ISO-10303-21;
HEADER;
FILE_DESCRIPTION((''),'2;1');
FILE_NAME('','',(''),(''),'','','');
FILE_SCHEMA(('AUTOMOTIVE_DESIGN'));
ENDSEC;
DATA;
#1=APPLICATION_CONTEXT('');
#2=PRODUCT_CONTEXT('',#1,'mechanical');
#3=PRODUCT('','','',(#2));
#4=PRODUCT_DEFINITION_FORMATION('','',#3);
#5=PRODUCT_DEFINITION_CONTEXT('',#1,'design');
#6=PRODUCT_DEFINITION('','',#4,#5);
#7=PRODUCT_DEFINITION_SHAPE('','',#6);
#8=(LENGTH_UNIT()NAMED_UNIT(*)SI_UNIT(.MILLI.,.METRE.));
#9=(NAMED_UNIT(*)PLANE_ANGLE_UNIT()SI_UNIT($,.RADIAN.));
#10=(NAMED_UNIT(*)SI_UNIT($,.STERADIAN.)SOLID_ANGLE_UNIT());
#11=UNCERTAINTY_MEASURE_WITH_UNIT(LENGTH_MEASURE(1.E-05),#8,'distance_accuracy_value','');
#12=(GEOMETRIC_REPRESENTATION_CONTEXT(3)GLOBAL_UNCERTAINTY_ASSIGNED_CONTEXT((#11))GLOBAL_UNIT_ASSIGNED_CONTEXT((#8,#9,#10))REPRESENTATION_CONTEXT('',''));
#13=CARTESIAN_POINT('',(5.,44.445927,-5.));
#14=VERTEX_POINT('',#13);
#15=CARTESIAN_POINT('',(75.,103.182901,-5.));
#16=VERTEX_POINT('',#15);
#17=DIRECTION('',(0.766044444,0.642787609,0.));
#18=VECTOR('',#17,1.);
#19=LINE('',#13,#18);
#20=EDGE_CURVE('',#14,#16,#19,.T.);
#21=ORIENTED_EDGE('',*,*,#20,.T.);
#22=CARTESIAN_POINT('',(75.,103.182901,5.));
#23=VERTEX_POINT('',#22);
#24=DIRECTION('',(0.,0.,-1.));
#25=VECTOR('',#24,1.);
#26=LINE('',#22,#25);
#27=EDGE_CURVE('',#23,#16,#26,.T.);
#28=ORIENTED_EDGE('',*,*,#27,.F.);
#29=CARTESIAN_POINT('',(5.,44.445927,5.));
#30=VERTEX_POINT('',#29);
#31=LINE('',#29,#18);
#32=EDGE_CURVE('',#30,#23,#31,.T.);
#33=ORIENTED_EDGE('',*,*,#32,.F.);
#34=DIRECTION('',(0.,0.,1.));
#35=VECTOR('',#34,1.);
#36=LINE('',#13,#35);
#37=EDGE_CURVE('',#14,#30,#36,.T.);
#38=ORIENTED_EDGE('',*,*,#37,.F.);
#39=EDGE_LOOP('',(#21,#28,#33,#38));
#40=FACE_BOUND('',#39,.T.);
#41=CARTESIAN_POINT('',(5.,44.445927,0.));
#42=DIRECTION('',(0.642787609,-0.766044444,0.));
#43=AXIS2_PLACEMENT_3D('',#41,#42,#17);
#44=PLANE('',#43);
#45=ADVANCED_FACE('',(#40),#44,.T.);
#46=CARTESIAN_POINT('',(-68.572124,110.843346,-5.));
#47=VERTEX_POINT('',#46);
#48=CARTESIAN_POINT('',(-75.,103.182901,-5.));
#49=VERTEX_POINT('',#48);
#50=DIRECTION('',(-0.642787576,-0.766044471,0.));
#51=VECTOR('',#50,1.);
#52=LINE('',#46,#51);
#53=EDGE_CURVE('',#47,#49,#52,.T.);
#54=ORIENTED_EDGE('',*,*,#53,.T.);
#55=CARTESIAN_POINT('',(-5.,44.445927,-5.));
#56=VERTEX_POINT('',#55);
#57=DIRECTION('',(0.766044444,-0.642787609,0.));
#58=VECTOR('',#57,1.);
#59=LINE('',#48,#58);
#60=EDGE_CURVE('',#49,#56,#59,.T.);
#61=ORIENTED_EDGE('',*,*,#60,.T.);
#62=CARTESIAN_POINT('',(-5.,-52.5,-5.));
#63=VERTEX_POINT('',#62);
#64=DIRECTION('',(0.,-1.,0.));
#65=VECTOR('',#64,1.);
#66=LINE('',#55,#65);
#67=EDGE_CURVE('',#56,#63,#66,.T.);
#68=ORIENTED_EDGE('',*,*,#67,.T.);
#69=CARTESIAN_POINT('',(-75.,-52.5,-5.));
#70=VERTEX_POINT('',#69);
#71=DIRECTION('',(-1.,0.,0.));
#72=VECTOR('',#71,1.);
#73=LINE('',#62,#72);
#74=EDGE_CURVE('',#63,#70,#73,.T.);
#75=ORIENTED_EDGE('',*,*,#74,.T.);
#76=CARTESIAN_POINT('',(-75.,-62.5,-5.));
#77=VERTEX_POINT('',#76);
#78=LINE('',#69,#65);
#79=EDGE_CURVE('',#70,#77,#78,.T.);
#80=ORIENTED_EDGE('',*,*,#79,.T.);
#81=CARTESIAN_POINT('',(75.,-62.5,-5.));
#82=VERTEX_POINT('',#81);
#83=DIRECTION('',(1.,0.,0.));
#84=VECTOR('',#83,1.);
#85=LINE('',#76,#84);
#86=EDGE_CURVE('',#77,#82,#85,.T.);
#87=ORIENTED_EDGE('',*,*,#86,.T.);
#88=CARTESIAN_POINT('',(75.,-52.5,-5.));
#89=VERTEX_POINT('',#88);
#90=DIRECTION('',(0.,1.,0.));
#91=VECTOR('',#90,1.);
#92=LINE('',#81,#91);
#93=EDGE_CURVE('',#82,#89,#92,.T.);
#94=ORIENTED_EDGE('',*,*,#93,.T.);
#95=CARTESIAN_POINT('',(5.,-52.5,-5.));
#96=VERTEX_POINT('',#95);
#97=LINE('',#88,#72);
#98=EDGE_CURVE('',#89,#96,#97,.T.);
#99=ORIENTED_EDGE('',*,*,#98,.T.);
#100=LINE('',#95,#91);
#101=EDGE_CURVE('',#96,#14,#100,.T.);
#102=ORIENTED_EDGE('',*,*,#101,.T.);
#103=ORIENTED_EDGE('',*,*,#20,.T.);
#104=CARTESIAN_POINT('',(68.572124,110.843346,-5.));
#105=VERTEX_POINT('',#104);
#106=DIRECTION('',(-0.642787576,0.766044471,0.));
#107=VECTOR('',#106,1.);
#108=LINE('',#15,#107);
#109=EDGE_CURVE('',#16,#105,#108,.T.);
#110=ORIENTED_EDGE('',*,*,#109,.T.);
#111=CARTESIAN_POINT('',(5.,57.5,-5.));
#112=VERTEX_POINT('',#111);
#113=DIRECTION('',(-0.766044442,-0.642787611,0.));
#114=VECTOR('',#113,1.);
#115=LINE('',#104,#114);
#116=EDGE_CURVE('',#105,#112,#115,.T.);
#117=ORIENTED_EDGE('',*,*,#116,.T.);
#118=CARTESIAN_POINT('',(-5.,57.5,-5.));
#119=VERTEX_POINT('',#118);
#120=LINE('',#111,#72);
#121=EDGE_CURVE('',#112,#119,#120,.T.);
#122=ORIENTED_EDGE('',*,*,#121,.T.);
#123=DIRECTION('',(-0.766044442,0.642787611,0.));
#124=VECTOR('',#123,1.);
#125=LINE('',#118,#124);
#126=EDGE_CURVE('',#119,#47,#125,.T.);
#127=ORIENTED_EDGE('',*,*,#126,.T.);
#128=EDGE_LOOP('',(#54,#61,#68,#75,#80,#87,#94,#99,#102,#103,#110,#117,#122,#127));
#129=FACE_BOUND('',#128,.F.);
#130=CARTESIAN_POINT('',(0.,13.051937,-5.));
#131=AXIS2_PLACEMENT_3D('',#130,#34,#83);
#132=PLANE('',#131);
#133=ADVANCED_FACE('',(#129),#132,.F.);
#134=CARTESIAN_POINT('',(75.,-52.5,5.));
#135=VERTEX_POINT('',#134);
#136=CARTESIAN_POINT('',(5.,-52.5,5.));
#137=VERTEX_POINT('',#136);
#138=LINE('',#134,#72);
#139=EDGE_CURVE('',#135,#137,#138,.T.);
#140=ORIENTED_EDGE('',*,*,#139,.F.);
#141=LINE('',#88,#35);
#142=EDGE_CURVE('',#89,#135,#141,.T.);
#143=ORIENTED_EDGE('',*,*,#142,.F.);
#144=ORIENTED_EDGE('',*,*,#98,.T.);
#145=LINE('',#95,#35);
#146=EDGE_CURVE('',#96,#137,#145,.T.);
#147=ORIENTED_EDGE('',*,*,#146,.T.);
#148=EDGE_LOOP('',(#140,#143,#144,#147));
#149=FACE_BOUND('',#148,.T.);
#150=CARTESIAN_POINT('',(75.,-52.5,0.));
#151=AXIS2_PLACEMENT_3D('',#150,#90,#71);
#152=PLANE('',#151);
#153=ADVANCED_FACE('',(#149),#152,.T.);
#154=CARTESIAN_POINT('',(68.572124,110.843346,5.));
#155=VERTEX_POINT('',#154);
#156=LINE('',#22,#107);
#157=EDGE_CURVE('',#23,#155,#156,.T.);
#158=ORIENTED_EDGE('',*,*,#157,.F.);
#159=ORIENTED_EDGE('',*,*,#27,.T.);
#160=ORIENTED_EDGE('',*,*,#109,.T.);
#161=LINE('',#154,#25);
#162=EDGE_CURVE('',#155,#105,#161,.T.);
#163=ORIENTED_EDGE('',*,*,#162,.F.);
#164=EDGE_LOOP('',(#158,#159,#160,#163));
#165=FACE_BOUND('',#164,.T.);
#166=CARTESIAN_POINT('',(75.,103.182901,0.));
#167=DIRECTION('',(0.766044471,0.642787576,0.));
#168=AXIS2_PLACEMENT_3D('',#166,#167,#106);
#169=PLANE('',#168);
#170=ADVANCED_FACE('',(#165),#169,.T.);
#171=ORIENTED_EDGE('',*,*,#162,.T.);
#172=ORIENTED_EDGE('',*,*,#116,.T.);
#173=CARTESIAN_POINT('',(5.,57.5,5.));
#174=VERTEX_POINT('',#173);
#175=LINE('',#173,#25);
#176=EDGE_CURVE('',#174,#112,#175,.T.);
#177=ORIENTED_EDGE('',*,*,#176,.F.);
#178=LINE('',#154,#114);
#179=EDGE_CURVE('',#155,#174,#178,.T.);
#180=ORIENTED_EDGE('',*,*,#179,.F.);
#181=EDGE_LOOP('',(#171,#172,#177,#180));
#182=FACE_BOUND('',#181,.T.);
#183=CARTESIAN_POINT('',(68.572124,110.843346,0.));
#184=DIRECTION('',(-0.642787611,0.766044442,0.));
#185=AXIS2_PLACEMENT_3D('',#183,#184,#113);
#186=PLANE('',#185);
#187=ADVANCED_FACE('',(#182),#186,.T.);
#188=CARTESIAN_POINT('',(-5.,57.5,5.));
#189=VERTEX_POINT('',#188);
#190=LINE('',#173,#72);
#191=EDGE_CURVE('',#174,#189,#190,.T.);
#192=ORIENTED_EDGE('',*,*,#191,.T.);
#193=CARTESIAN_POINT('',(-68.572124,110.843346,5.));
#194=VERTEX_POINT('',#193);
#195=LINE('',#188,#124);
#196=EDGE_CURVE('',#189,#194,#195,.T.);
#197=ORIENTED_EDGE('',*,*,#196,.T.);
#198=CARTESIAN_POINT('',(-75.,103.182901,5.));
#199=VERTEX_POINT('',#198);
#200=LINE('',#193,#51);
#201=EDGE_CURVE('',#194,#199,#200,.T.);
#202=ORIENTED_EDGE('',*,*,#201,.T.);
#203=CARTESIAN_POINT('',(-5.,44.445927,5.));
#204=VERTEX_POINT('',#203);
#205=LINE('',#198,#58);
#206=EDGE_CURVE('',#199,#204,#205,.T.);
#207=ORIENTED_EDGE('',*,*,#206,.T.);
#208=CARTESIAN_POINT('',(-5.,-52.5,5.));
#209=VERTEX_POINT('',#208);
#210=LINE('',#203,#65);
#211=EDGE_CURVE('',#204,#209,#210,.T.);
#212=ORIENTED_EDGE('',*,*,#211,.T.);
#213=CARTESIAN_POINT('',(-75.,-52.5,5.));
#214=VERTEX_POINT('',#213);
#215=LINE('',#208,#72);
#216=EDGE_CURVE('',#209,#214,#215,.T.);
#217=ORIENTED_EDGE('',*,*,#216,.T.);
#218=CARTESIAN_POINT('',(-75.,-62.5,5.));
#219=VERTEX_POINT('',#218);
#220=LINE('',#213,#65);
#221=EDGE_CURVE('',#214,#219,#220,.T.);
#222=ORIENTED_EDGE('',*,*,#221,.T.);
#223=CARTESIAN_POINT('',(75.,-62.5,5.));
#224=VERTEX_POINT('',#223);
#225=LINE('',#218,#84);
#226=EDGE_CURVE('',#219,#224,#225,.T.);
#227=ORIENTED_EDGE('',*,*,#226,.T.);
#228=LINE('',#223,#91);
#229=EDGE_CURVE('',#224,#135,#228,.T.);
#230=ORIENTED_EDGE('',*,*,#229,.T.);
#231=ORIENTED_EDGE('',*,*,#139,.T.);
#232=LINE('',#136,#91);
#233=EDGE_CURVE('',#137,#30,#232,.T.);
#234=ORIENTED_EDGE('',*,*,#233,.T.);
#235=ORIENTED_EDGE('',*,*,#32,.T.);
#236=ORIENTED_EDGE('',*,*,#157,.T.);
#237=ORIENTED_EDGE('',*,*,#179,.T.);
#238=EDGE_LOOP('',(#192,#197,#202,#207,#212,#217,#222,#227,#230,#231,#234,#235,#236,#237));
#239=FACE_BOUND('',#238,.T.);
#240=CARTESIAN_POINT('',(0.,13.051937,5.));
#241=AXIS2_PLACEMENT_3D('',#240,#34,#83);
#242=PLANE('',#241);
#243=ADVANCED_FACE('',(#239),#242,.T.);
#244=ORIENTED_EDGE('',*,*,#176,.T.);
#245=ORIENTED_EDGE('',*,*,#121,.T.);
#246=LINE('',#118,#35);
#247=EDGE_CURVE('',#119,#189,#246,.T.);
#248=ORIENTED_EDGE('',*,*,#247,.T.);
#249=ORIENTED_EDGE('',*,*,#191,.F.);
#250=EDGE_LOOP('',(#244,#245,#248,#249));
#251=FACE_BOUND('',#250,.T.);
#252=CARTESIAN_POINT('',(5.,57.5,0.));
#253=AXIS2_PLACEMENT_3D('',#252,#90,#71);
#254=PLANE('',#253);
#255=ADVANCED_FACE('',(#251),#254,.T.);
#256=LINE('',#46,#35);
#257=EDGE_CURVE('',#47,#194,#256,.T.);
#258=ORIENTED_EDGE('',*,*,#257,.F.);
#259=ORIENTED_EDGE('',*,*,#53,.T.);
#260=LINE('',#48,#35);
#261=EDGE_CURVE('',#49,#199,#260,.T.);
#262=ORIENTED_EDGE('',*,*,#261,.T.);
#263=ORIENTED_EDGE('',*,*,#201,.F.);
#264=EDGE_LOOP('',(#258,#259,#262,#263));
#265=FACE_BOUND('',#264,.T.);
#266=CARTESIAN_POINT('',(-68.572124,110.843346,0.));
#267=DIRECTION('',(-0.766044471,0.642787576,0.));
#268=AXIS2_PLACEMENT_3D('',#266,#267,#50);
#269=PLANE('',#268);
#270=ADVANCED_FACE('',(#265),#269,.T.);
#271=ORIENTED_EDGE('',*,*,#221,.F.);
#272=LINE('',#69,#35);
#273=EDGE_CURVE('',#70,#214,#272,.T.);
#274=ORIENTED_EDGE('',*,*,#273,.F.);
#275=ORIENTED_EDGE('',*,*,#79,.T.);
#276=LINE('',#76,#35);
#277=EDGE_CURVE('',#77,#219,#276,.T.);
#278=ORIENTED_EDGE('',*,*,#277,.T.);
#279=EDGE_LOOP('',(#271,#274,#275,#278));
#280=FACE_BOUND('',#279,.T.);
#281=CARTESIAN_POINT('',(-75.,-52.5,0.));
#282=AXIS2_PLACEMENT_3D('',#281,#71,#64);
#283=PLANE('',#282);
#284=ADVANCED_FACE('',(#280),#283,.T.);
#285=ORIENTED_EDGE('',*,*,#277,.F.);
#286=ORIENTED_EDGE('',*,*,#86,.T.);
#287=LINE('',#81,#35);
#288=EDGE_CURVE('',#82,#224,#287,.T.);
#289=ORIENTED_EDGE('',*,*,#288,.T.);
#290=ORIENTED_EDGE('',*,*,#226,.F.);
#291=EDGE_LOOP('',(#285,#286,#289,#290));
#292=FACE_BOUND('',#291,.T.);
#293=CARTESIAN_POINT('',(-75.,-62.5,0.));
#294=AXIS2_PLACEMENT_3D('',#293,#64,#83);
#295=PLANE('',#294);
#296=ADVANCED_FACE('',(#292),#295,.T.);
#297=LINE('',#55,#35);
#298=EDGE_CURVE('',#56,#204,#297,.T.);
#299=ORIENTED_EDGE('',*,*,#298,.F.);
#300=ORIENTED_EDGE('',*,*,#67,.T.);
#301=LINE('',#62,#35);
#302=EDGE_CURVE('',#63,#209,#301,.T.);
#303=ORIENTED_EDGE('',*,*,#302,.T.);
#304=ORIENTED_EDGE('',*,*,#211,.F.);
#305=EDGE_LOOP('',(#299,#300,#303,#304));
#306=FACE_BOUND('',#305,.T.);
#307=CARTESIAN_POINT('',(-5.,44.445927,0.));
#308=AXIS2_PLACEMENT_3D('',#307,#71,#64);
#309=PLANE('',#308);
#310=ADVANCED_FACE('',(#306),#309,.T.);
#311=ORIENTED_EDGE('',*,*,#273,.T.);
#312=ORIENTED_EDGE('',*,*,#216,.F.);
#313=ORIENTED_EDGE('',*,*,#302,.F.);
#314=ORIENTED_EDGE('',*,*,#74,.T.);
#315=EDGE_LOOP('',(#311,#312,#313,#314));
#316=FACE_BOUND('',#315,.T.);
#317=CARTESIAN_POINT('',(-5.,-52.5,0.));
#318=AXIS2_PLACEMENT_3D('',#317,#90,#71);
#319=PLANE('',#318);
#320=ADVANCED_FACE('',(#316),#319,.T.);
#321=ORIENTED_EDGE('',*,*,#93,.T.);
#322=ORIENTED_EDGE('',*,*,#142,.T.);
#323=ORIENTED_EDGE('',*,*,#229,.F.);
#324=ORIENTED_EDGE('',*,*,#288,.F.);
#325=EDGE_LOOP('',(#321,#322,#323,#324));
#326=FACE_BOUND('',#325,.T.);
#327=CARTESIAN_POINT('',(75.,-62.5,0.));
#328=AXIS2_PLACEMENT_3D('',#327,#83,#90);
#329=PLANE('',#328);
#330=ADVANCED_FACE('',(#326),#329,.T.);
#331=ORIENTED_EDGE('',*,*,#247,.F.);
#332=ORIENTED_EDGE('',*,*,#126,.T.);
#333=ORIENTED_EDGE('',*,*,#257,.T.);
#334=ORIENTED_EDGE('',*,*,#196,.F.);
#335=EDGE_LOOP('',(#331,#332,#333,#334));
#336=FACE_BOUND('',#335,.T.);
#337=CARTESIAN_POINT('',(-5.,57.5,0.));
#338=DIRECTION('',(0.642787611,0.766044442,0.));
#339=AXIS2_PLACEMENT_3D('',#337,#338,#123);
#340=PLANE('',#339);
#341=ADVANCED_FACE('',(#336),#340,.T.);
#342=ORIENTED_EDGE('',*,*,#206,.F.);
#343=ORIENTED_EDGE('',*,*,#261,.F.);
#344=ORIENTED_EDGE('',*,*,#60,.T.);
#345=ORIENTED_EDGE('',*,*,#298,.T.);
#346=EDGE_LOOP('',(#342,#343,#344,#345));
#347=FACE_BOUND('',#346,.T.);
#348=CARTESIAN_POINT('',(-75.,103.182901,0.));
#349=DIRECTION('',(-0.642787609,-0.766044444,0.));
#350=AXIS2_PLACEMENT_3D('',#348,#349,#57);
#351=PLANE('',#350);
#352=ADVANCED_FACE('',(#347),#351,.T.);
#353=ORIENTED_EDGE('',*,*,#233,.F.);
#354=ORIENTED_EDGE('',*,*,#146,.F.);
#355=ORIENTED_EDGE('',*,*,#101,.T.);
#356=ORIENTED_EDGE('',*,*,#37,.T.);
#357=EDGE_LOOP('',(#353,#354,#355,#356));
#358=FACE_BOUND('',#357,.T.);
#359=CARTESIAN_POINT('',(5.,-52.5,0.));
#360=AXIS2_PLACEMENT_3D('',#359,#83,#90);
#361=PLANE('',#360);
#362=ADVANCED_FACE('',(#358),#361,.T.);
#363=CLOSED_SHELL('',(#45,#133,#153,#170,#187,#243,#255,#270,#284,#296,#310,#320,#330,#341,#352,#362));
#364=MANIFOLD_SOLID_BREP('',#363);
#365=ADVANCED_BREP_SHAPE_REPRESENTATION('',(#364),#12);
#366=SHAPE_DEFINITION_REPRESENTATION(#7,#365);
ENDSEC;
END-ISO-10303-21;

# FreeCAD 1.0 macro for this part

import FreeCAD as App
import Part
import Sketcher
from FreeCAD import Vector
Q = App.Units.Quantity


def add_polygon(sketch, points):
    """Adds a closed chain of lines whose ends are joined by coincident constraints."""
    first, n = sketch.GeometryCount, len(points)
    for a, b in zip(points, points[1:] + points[:1]):
        sketch.addGeometry(Part.LineSegment(App.Vector(*a, 0), App.Vector(*b, 0)), False)
    for i in range(n):
        sketch.addConstraint(Sketcher.Constraint("Coincident", first + i, 2, first + (i + 1) % n, 1))

doc = App.newDocument("Part")
params = doc.addObject("Spreadsheet::Sheet", "Params")
for row, (alias, value) in enumerate([
    ("sketch1_width", "10 mm"),
    ("sketch1_width2", "70 mm"),
    ("sketch1_length", "10 mm"),
    ("pad1_length", "10 mm"),
], start=1):
    params.set(f"A{row}", alias)
    params.set(f"B{row}", "=" + value)
    params.setAlias(f"B{row}", alias)

body = doc.addObject("PartDesign::Body", "Body")

# Sketch on XY plane
sketch1 = body.newObject("Sketcher::SketchObject", "Sketch")
sketch1.AttachmentSupport = (doc.getObject("XY_Plane"), [""])
sketch1.MapMode = "FlatFace"
add_polygon(sketch1, [(5, 58), (-5, 58), (-69, 111), (-75, 103), (-5, 44), (-5, -52), (-75, -52), (-75, -62), (75, -62), (75, -52), (5, -52), (5, 44), (75, 103), (69, 111)])  # lines 0-13
sketch1.addConstraint(Sketcher.Constraint("Horizontal", 0))
sketch1.addConstraint(Sketcher.Constraint("Vertical", 4))
sketch1.addConstraint(Sketcher.Constraint("Horizontal", 5))
sketch1.addConstraint(Sketcher.Constraint("Vertical", 6))
sketch1.addConstraint(Sketcher.Constraint("Horizontal", 7))
sketch1.addConstraint(Sketcher.Constraint("Vertical", 8))
sketch1.addConstraint(Sketcher.Constraint("Horizontal", 9))
sketch1.addConstraint(Sketcher.Constraint("Vertical", 10))
sketch1.addConstraint(Sketcher.Constraint("Symmetric", 5, 2, 8, 2, -2))
sketch1.addConstraint(Sketcher.Constraint("Symmetric", 3, 2, 10, 2, -2))
sketch1.addConstraint(Sketcher.Constraint("Symmetric", 2, 2, 11, 2, -2))
sketch1.addConstraint(Sketcher.Constraint("Symmetric", 1, 2, 12, 2, -2))
sketch1.addConstraint(Sketcher.Constraint("Perpendicular", 1, 2))
sketch1.addConstraint(Sketcher.Constraint("Perpendicular", 2, 3))
sketch1.addConstraint(Sketcher.Constraint("Perpendicular", 12, 13))
sketch1.addConstraint(Sketcher.Constraint("Vertical", 0, 2, 3, 2))
sketch1.addConstraint(Sketcher.Constraint("Vertical", 2, 2, 5, 2))
sketch1.addConstraint(Sketcher.Constraint("Equal", 0, 6))
sketch1.addConstraint(Sketcher.Constraint("DistanceX", 0, 2, 0, 1, 10.0))
sketch1.addConstraint(Sketcher.Constraint("DistanceX", 5, 2, 5, 1, 70.0))
sketch1.addConstraint(Sketcher.Constraint("Angle", 1, Q("140 deg")))
sketch1.addConstraint(Sketcher.Constraint("Distance", 2, 10.0))
sketch1.addConstraint(Sketcher.Constraint("DistanceY", 4, 2, 0, 2, 110.0))
sketch1.addConstraint(Sketcher.Constraint("DistanceY", -1, 1, 0, 2, 57.5))
sketch1.setExpression("Constraints[32]", "Params.sketch1_width")
sketch1.setExpression("Constraints[33]", "Params.sketch1_width2")
sketch1.setExpression("Constraints[35]", "Params.sketch1_length")
pad1 = body.newObject("PartDesign::Pad", "Pad")
pad1.Profile = sketch1
pad1.setExpression("Length", "Params.pad1_length")
pad1.Midplane = True

doc.recompute()
